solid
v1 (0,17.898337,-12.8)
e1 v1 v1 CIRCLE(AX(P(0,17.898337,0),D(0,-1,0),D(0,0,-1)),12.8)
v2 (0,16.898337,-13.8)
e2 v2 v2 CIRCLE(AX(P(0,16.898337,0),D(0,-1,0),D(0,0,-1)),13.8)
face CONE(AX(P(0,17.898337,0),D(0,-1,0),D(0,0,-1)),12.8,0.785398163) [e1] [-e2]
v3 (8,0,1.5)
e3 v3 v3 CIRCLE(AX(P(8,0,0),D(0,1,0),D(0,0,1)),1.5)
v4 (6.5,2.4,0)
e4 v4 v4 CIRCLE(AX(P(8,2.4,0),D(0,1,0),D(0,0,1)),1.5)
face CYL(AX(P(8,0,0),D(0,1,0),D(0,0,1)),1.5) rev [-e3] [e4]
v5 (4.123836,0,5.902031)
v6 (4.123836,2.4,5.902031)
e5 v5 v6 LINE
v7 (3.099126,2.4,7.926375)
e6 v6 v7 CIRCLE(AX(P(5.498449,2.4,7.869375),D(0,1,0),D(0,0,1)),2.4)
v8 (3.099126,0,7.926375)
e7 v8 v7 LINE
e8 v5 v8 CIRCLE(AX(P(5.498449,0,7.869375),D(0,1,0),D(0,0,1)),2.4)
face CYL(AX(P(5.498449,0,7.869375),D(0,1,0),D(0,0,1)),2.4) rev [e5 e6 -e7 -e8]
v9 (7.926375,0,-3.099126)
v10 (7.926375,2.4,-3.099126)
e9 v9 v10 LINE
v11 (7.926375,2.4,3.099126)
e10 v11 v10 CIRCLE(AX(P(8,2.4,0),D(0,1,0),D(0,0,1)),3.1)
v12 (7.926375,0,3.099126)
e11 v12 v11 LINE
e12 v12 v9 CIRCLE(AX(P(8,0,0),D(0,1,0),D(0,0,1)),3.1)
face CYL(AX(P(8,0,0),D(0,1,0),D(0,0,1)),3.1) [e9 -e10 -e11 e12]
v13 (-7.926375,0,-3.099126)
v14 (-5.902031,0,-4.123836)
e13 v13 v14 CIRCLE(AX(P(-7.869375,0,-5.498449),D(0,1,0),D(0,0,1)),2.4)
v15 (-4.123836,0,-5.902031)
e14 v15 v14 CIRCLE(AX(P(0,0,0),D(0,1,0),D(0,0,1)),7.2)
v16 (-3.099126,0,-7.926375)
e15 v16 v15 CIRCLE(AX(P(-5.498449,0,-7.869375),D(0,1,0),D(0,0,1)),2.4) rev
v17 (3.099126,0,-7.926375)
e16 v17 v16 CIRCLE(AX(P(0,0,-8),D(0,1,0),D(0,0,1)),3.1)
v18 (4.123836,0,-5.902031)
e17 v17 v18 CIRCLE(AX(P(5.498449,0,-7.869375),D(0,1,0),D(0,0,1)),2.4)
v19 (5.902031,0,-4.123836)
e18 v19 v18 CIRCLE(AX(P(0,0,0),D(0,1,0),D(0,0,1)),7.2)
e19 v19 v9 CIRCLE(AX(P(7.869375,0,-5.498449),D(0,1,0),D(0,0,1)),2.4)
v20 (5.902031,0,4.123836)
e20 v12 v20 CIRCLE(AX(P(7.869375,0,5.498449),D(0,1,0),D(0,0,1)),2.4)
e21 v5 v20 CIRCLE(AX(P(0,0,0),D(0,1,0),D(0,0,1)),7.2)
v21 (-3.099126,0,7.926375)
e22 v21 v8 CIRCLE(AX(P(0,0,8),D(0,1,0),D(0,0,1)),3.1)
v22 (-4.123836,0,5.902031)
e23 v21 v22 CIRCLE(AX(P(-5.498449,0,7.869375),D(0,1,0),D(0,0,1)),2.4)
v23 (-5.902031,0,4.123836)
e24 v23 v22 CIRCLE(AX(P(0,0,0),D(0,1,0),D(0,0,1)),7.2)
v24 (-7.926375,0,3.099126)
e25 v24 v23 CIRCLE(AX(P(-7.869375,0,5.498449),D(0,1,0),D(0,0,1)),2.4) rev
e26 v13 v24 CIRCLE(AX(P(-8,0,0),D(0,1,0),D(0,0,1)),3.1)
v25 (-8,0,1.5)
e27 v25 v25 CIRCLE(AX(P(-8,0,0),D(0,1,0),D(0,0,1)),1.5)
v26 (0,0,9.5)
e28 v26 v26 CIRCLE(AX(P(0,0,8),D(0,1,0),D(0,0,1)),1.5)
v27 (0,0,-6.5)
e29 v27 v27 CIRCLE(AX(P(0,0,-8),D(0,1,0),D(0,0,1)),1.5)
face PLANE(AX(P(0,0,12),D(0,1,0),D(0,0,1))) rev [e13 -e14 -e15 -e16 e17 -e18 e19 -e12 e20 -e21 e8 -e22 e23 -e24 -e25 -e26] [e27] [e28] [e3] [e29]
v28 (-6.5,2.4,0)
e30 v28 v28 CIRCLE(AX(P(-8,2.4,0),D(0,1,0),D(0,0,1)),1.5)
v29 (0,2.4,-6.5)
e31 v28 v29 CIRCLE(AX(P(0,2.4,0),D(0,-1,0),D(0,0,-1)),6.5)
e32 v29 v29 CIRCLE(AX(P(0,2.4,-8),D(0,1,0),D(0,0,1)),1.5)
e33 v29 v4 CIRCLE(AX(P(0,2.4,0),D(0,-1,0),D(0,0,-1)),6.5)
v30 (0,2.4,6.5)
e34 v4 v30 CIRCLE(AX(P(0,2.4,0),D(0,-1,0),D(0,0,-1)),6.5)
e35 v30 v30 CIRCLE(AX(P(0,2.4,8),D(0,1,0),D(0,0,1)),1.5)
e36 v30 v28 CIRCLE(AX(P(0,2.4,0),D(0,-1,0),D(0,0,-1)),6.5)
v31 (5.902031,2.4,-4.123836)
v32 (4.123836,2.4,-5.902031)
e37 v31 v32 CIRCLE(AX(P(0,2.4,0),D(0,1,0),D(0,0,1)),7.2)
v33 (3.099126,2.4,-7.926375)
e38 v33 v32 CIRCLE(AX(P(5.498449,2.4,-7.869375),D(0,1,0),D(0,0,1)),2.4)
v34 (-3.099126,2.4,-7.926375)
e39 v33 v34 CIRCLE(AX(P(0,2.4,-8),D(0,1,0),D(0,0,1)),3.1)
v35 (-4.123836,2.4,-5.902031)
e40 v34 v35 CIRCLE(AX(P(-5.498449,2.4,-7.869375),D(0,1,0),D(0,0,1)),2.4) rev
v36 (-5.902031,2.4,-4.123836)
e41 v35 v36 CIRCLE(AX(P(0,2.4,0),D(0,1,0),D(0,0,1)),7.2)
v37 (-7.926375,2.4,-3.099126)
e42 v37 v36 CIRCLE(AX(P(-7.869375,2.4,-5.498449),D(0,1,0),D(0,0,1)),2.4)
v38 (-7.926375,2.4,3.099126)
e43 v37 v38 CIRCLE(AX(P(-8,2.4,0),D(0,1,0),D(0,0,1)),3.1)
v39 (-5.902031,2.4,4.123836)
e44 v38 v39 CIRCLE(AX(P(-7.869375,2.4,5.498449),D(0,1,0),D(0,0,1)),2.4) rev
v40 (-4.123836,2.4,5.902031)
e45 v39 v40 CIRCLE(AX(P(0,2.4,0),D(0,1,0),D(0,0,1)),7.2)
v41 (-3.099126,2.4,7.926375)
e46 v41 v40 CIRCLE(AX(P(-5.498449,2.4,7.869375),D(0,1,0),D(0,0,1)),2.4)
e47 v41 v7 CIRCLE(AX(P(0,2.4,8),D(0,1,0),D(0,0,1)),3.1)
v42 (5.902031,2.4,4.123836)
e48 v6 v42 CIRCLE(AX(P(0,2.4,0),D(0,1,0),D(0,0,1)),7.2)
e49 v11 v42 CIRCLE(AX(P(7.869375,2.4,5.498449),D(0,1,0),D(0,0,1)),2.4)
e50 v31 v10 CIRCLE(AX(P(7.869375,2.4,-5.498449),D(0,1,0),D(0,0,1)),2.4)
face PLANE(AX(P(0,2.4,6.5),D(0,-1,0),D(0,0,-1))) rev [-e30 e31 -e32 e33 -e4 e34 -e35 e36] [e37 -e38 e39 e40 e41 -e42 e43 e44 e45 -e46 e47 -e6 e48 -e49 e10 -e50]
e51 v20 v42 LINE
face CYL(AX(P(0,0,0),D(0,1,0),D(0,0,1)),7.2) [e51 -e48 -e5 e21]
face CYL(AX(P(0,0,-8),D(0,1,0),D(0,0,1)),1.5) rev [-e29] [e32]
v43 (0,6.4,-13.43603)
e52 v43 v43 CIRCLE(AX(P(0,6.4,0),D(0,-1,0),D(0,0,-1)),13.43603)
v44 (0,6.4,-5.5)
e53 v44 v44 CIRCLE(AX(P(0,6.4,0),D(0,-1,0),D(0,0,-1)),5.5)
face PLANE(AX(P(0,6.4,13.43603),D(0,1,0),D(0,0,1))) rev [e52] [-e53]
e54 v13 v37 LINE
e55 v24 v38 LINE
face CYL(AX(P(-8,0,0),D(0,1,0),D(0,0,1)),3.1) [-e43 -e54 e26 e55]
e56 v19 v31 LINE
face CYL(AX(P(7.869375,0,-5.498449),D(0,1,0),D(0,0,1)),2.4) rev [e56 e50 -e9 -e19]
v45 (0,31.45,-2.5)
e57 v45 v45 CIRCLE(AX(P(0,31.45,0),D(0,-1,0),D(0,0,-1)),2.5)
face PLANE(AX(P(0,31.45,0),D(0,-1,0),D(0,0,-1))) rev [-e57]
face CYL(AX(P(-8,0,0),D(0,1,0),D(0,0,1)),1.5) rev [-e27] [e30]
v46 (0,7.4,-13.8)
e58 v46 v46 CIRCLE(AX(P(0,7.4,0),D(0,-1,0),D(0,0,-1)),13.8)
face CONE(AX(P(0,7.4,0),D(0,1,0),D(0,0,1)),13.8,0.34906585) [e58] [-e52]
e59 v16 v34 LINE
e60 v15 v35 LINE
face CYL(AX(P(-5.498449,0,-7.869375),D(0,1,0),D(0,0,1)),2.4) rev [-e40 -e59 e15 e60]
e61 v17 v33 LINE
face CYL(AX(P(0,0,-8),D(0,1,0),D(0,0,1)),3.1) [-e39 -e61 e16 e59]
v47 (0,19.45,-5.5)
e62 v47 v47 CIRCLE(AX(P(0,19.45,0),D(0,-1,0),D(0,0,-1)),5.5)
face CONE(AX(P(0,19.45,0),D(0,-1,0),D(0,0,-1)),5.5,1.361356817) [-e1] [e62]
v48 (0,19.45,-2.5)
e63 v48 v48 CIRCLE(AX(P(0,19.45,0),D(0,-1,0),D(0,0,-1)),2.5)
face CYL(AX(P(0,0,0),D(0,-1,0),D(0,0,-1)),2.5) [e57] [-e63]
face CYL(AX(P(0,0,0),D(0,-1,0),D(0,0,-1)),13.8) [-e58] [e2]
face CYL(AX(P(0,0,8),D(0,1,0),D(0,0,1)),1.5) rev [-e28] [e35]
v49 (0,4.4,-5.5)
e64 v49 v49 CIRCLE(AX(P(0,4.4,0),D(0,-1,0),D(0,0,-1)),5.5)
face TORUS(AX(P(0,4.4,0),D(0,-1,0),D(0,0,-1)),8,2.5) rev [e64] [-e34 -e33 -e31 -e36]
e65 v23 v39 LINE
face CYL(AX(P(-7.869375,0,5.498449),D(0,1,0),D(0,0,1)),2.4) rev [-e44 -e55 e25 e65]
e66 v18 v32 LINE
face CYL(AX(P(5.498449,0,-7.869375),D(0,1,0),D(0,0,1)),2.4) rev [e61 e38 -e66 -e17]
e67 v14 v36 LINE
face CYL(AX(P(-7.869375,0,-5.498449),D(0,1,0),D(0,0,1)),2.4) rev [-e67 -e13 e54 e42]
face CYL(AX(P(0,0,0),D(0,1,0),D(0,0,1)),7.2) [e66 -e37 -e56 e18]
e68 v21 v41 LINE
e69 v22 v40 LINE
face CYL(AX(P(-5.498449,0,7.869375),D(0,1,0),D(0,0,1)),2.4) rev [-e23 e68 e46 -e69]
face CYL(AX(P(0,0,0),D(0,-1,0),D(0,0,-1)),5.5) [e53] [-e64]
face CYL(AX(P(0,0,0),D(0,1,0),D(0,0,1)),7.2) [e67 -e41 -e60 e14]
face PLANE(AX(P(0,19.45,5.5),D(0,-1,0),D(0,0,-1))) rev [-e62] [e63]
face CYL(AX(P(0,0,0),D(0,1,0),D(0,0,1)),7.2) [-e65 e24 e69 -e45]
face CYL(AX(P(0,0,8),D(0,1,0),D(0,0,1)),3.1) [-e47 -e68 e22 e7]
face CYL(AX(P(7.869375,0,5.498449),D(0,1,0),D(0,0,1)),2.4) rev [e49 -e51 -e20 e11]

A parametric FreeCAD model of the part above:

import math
import FreeCAD as App
import Part
import Sketcher
from FreeCAD import Vector
Q = App.Units.Quantity

doc = App.newDocument("Part")
body = doc.addObject("PartDesign::Body", "Body")

# Sketch on YZ plane
sketch1 = body.newObject("Sketcher::SketchObject", "Sketch")
sketch1.AttachmentSupport = (doc.getObject("YZ_Plane"), [""])
sketch1.MapMode = "FlatFace"
sketch1.addGeometry([
    Part.LineSegment(Vector(0, 0, 0), Vector(31.4, 0, 0)),  # 0
    Part.LineSegment(Vector(31.4, 0, 0), Vector(31.4, 2.5, 0)),  # 1
    Part.LineSegment(Vector(31.4, 2.5, 0), Vector(19.4, 2.5, 0)),  # 2
    Part.LineSegment(Vector(19.4, 2.5, 0), Vector(19.4, 5.5, 0)),  # 3
    Part.LineSegment(Vector(19.4, 5.5, 0), Vector(17.9, 12.8, 0)),  # 4
    Part.LineSegment(Vector(17.9, 12.8, 0), Vector(16.9, 13.8, 0)),  # 5
    Part.LineSegment(Vector(16.9, 13.8, 0), Vector(7.4, 13.8, 0)),  # 6
    Part.LineSegment(Vector(7.4, 13.8, 0), Vector(6.4, 13.4, 0)),  # 7
    Part.LineSegment(Vector(6.4, 13.4, 0), Vector(6.4, 5.5, 0)),  # 8
    Part.LineSegment(Vector(6.4, 5.5, 0), Vector(4.4, 5.5, 0)),  # 9
    Part.ArcOfCircle(Part.Circle(Vector(4.4, 8, 0), Vector(0, 0, 1), 2.5), math.radians(-143), math.radians(-90)),  # 10
    Part.LineSegment(Vector(2.4, 6.5, 0), Vector(2.4, 12, 0)),  # 11
    Part.LineSegment(Vector(2.4, 12, 0), Vector(0, 12, 0)),  # 12
    Part.LineSegment(Vector(0, 12, 0), Vector(0, 0, 0)),  # 13
], False)
sketch1.addConstraint([
    Sketcher.Constraint("Coincident", 0, 2, 1, 1),
    Sketcher.Constraint("Coincident", 1, 2, 2, 1),
    Sketcher.Constraint("Coincident", 2, 2, 3, 1),
    Sketcher.Constraint("Coincident", 3, 2, 4, 1),
    Sketcher.Constraint("Coincident", 4, 2, 5, 1),
    Sketcher.Constraint("Coincident", 5, 2, 6, 1),
    Sketcher.Constraint("Coincident", 6, 2, 7, 1),
    Sketcher.Constraint("Coincident", 7, 2, 8, 1),
    Sketcher.Constraint("Coincident", 8, 2, 9, 1),
    Sketcher.Constraint("Tangent", 9, 2, 10, 2),
    Sketcher.Constraint("Coincident", 10, 1, 11, 1),
    Sketcher.Constraint("Coincident", 11, 2, 12, 1),
    Sketcher.Constraint("Coincident", 12, 2, 13, 1),
    Sketcher.Constraint("Coincident", 13, 2, 0, 1),
    Sketcher.Constraint("Horizontal", 0),
    Sketcher.Constraint("Vertical", 1),
    Sketcher.Constraint("Horizontal", 2),
    Sketcher.Constraint("Vertical", 3),
    Sketcher.Constraint("Horizontal", 6),
    Sketcher.Constraint("Vertical", 8),
    Sketcher.Constraint("Horizontal", 9),
    Sketcher.Constraint("Vertical", 11),
    Sketcher.Constraint("Horizontal", 12),
    Sketcher.Constraint("Vertical", 13),
    Sketcher.Constraint("Coincident", 13, 2, -1, 1),
    Sketcher.Constraint("Horizontal", 3, 2, 8, 2),
    Sketcher.Constraint("Equal", 2, 13),
    Sketcher.Constraint("Radius", 10, 2.5),
    Sketcher.Constraint("DistanceX", 2, 2, 2, 1, 12.0),
    Sketcher.Constraint("DistanceX", 9, 2, 9, 1, 2.0),
    Sketcher.Constraint("DistanceY", 3, 1, 3, 2, 3.0),
    Sketcher.Constraint("Angle", 4, Q("102 deg")),
    Sketcher.Constraint("Angle", 5, Q("135 deg")),
    Sketcher.Constraint("Angle", 7, Q("-160 deg")),
    Sketcher.Constraint("DistanceX", 12, 2, 12, 1, 2.4),
    Sketcher.Constraint("DistanceY", 1, 1, 1, 2, 2.5),
    Sketcher.Constraint("DistanceY", 11, 1, 11, 2, 5.5),
    Sketcher.Constraint("DistanceX", 5, 2, 4, 2, 1.0),
    Sketcher.Constraint("DistanceX", 10, 3, 6, 2, 3.0),
    Sketcher.Constraint("DistanceX", 0, 1, 0, 2, 31.45),
    Sketcher.Constraint("DistanceY", -1, 1, 4, 2, 12.8),
])
revolution = body.newObject("PartDesign::Revolution", "Revolution")
revolution.Profile = sketch1
revolution.ReferenceAxis = (sketch1, ["H_Axis"])
revolution.Angle = 360

# Sketch on XZ plane
sketch2 = body.newObject("Sketcher::SketchObject", "Sketch001")
sketch2.AttachmentSupport = (doc.getObject("XZ_Plane"), [""])
sketch2.MapMode = "FlatFace"
sketch2.AttachmentOffset = App.Placement(Vector(0, 0, -2.4), App.Rotation())
sketch2.addGeometry([
    Part.Circle(Vector(0, 0, 0), Vector(0, 0, 1), 12),  # 0
    Part.ArcOfCircle(Part.Circle(Vector(0, 8, 0), Vector(0, 0, 1), 3.1), math.radians(-1), math.radians(181)),  # 1
    Part.ArcOfCircle(Part.Circle(Vector(-5.5, 7.9, 0), Vector(0, 0, 1), 2.4), math.radians(-55), math.radians(1)),  # 2
    Part.ArcOfCircle(Part.Circle(Vector(0, 0, 0), Vector(0, 0, 1), 7.2), math.radians(125), math.radians(145)),  # 3
    Part.ArcOfCircle(Part.Circle(Vector(-7.9, 5.5, 0), Vector(0, 0, 1), 2.4), math.radians(-91), math.radians(-35)),  # 4
    Part.ArcOfCircle(Part.Circle(Vector(-8, 0, 0), Vector(0, 0, 1), 3.1), math.radians(89), math.radians(271)),  # 5
    Part.ArcOfCircle(Part.Circle(Vector(-7.9, -5.5, 0), Vector(0, 0, 1), 2.4), math.radians(35), math.radians(91)),  # 6
    Part.ArcOfCircle(Part.Circle(Vector(0, 0, 0), Vector(0, 0, 1), 7.2), math.radians(-145), math.radians(-125)),  # 7
    Part.ArcOfCircle(Part.Circle(Vector(-5.5, -7.9, 0), Vector(0, 0, 1), 2.4), math.radians(-1), math.radians(55)),  # 8
    Part.ArcOfCircle(Part.Circle(Vector(0, -8, 0), Vector(0, 0, 1), 3.1), math.radians(179), math.radians(361)),  # 9
    Part.ArcOfCircle(Part.Circle(Vector(5.5, -7.9, 0), Vector(0, 0, 1), 2.4), math.radians(125), math.radians(181)),  # 10
    Part.ArcOfCircle(Part.Circle(Vector(0, 0, 0), Vector(0, 0, 1), 7.2), math.radians(-55), math.radians(-35)),  # 11
    Part.ArcOfCircle(Part.Circle(Vector(7.9, -5.5, 0), Vector(0, 0, 1), 2.4), math.radians(89), math.radians(145)),  # 12
    Part.ArcOfCircle(Part.Circle(Vector(8, 0, 0), Vector(0, 0, 1), 3.1), math.radians(-91), math.radians(91)),  # 13
    Part.ArcOfCircle(Part.Circle(Vector(7.9, 5.5, 0), Vector(0, 0, 1), 2.4), math.radians(-145), math.radians(-89)),  # 14
    Part.ArcOfCircle(Part.Circle(Vector(0, 0, 0), Vector(0, 0, 1), 7.2), math.radians(35), math.radians(55)),  # 15
    Part.ArcOfCircle(Part.Circle(Vector(5.5, 7.9, 0), Vector(0, 0, 1), 2.4), math.radians(179), math.radians(235)),  # 16
    Part.Circle(Vector(0, 8, 0), Vector(0, 0, 1), 1.5),  # 17
    Part.Circle(Vector(8, 0, 0), Vector(0, 0, 1), 1.5),  # 18
    Part.Circle(Vector(0, -8, 0), Vector(0, 0, 1), 1.5),  # 19
    Part.Circle(Vector(-8, 0, 0), Vector(0, 0, 1), 1.5),  # 20
], False)
sketch2.addConstraint([
    Sketcher.Constraint("Tangent", 1, 2, 2, 2),
    Sketcher.Constraint("Tangent", 2, 1, 3, 1),
    Sketcher.Constraint("Tangent", 3, 2, 4, 2),
    Sketcher.Constraint("Tangent", 4, 1, 5, 1),
    Sketcher.Constraint("Tangent", 5, 2, 6, 2),
    Sketcher.Constraint("Tangent", 6, 1, 7, 1),
    Sketcher.Constraint("Tangent", 7, 2, 8, 2),
    Sketcher.Constraint("Tangent", 8, 1, 9, 1),
    Sketcher.Constraint("Tangent", 9, 2, 10, 2),
    Sketcher.Constraint("Tangent", 10, 1, 11, 1),
    Sketcher.Constraint("Tangent", 11, 2, 12, 2),
    Sketcher.Constraint("Tangent", 12, 1, 13, 1),
    Sketcher.Constraint("Tangent", 13, 2, 14, 2),
    Sketcher.Constraint("Tangent", 14, 1, 15, 1),
    Sketcher.Constraint("Tangent", 15, 2, 16, 2),
    Sketcher.Constraint("Tangent", 16, 1, 1, 1),
    Sketcher.Constraint("Coincident", 0, 3, -1, 1),
    Sketcher.Constraint("Coincident", 3, 3, -1, 1),
    Sketcher.Constraint("Coincident", 7, 3, -1, 1),
    Sketcher.Constraint("Coincident", 11, 3, -1, 1),
    Sketcher.Constraint("Coincident", 15, 3, -1, 1),
    Sketcher.Constraint("Coincident", 17, 3, 1, 3),
    Sketcher.Constraint("Coincident", 18, 3, 13, 3),
    Sketcher.Constraint("Coincident", 19, 3, 9, 3),
    Sketcher.Constraint("Coincident", 20, 3, 5, 3),
    Sketcher.Constraint("Equal", 2, 4),
    Sketcher.Constraint("Equal", 1, 5),
    Sketcher.Constraint("Equal", 4, 6),
    Sketcher.Constraint("Equal", 3, 7),
    Sketcher.Constraint("Equal", 6, 8),
    Sketcher.Constraint("Equal", 5, 9),
    Sketcher.Constraint("Equal", 8, 10),
    Sketcher.Constraint("Equal", 7, 11),
    Sketcher.Constraint("Equal", 10, 12),
    Sketcher.Constraint("Equal", 9, 13),
    Sketcher.Constraint("Equal", 12, 14),
    Sketcher.Constraint("Equal", 11, 15),
    Sketcher.Constraint("Equal", 14, 16),
    Sketcher.Constraint("Equal", 17, 18),
    Sketcher.Constraint("Equal", 18, 19),
    Sketcher.Constraint("Equal", 19, 20),
    Sketcher.Constraint("Symmetric", 1, 3, 9, 3, -1, 1),
    Sketcher.Constraint("Symmetric", 5, 3, 13, 3, -1, 1),
    Sketcher.Constraint("PointOnObject", 1, 3, -2),
    Sketcher.Constraint("PointOnObject", 5, 3, -1),
    Sketcher.Constraint("Diameter", 0, 24.0),
    Sketcher.Constraint("Diameter", 17, 3.0),
    Sketcher.Constraint("Radius", 1, 3.1),
    Sketcher.Constraint("Radius", 2, 2.4),
    Sketcher.Constraint("Radius", 3, 7.2),
    Sketcher.Constraint("DistanceY", -1, 1, 1, 3, 8.0),
    Sketcher.Constraint("DistanceX", 5, 3, -1, 1, 8.0),
])
pocket1 = body.newObject("PartDesign::Pocket", "Pocket")
pocket1.Profile = sketch2
pocket1.Length = 35.996893
pocket1.Reversed = True

doc.recompute()
